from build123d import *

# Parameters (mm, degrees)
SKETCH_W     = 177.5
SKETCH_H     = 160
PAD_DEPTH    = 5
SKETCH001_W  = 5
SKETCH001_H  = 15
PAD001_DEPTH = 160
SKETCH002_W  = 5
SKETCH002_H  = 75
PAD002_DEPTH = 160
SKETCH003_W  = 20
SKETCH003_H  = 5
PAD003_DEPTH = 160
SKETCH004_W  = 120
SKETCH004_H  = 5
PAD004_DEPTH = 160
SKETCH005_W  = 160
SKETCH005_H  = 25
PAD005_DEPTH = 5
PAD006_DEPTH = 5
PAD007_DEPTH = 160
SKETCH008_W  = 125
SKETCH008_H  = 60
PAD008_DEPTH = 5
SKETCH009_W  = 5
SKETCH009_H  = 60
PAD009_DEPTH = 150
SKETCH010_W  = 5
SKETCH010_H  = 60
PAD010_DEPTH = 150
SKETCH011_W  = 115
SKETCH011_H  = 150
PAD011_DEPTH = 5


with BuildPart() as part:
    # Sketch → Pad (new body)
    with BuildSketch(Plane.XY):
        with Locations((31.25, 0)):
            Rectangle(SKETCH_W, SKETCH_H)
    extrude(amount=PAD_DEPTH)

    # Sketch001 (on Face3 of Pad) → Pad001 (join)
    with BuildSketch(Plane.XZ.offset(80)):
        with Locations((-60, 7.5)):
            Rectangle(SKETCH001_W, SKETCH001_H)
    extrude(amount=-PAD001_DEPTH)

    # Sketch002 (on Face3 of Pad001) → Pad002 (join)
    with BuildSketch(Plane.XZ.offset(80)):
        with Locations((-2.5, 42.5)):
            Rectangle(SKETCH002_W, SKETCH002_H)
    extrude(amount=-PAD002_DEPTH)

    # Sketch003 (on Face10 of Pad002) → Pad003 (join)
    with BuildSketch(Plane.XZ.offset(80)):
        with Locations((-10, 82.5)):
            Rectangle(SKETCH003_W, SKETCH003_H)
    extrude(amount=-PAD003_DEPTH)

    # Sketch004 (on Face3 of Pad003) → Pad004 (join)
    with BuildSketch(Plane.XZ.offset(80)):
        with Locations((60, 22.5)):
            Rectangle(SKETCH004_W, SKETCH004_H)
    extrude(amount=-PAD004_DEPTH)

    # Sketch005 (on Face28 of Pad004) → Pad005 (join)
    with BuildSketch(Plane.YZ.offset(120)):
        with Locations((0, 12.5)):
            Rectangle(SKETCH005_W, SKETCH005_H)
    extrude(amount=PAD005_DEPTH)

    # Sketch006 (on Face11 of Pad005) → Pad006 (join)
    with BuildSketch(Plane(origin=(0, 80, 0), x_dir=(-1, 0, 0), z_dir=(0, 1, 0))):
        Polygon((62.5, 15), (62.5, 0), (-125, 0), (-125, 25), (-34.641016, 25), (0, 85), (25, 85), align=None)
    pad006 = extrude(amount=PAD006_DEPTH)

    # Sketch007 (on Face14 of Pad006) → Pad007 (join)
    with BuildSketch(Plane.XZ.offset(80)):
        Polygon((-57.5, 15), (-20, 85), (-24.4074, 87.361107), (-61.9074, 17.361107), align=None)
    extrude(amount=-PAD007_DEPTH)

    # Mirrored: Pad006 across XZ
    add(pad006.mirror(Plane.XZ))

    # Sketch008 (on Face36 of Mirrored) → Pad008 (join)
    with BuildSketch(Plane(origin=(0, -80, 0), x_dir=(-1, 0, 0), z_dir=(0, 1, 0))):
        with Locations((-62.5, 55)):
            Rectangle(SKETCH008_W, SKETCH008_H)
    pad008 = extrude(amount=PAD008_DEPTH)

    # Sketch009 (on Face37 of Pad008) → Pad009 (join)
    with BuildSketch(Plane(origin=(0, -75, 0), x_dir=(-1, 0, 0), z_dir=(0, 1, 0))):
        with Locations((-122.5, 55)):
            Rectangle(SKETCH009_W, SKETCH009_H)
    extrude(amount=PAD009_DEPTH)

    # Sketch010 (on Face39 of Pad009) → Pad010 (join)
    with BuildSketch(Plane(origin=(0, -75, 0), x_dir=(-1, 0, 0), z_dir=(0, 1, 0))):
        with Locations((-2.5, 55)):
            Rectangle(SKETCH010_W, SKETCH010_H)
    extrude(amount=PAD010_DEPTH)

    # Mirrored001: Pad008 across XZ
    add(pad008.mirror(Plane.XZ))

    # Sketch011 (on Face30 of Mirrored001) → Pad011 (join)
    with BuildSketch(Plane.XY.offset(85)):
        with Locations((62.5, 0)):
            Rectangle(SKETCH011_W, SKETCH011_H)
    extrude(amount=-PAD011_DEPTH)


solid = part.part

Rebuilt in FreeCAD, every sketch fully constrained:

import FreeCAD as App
import Part
import Sketcher
from FreeCAD import Vector
Q = App.Units.Quantity


def add_polygon(sketch, points):
    """Adds a closed chain of lines whose ends are joined by coincident constraints."""
    first, n = sketch.GeometryCount, len(points)
    for a, b in zip(points, points[1:] + points[:1]):
        sketch.addGeometry(Part.LineSegment(App.Vector(*a, 0), App.Vector(*b, 0)), False)
    for i in range(n):
        sketch.addConstraint(Sketcher.Constraint("Coincident", first + i, 2, first + (i + 1) % n, 1))

doc = App.newDocument("Part")
params = doc.addObject("Spreadsheet::Sheet", "Params")
for row, (alias, value) in enumerate([
    ("sketch1_height", "160 mm"),
    ("sketch1_width", "177.5 mm"),
    ("pad1_length", "5 mm"),
    ("sketch2_width", "5 mm"),
    ("sketch2_height", "15 mm"),
    ("pad2_length", "160 mm"),
    ("sketch3_width", "5 mm"),
    ("sketch3_height", "75 mm"),
    ("pad3_length", "160 mm"),
    ("sketch4_width", "20 mm"),
    ("sketch4_height", "5 mm"),
    ("pad4_length", "160 mm"),
    ("sketch5_width", "120 mm"),
    ("sketch5_height", "5 mm"),
    ("pad5_length", "160 mm"),
    ("sketch6_width", "160 mm"),
    ("sketch6_height", "25 mm"),
    ("pad6_length", "5 mm"),
    ("sketch7_width", "25 mm"),
    ("sketch7_height", "15 mm"),
    ("sketch7_width2", "187.5 mm"),
    ("pad7_length", "5 mm"),
    ("sketch8_length", "5 mm"),
    ("pad8_length", "160 mm"),
    ("sketch9_width", "125 mm"),
    ("sketch9_height", "60 mm"),
    ("pad9_length", "5 mm"),
    ("sketch10_width", "5 mm"),
    ("sketch10_height", "60 mm"),
    ("pad10_length", "150 mm"),
    ("sketch11_width", "5 mm"),
    ("sketch11_height", "60 mm"),
    ("pad11_length", "150 mm"),
    ("sketch12_width", "115 mm"),
    ("sketch12_height", "150 mm"),
    ("pad12_length", "5 mm"),
], start=1):
    params.set(f"A{row}", alias)
    params.set(f"B{row}", "=" + value)
    params.setAlias(f"B{row}", alias)

body = doc.addObject("PartDesign::Body", "Body")

# Sketch on XY plane
sketch1 = body.newObject("Sketcher::SketchObject", "Sketch")
sketch1.AttachmentSupport = (doc.getObject("XY_Plane"), [""])
sketch1.MapMode = "FlatFace"
add_polygon(sketch1, [(-58, 80), (-58, -80), (120, -80), (120, 80)])  # lines 0-3
sketch1.addConstraint(Sketcher.Constraint("Vertical", 0))
sketch1.addConstraint(Sketcher.Constraint("Horizontal", 1))
sketch1.addConstraint(Sketcher.Constraint("Vertical", 2))
sketch1.addConstraint(Sketcher.Constraint("Horizontal", 3))
sketch1.addConstraint(Sketcher.Constraint("DistanceY", 0, 2, 0, 1, 160.0))
sketch1.addConstraint(Sketcher.Constraint("DistanceX", 1, 1, 1, 2, 177.5))
sketch1.addConstraint(Sketcher.Constraint("DistanceY", 0, 2, -1, 1, 80.0))
sketch1.addConstraint(Sketcher.Constraint("DistanceX", -1, 1, 1, 2, 120.0))
sketch1.setExpression("Constraints[8]", "Params.sketch1_height")
sketch1.setExpression("Constraints[9]", "Params.sketch1_width")
pad1 = body.newObject("PartDesign::Pad", "Pad")
pad1.Profile = sketch1
pad1.setExpression("Length", "Params.pad1_length")

# Sketch on XZ plane
sketch2 = body.newObject("Sketcher::SketchObject", "Sketch001")
sketch2.AttachmentSupport = (doc.getObject("XZ_Plane"), [""])
sketch2.MapMode = "FlatFace"
sketch2.AttachmentOffset = App.Placement(Vector(0, 0, 80), App.Rotation())
add_polygon(sketch2, [(-62, 15), (-62, 0), (-58, 0), (-58, 15)])  # lines 0-3
sketch2.addConstraint(Sketcher.Constraint("Vertical", 0))
sketch2.addConstraint(Sketcher.Constraint("Horizontal", 1))
sketch2.addConstraint(Sketcher.Constraint("Vertical", 2))
sketch2.addConstraint(Sketcher.Constraint("Horizontal", 3))
sketch2.addConstraint(Sketcher.Constraint("PointOnObject", 0, 2, -1))
sketch2.addConstraint(Sketcher.Constraint("DistanceX", 1, 1, 1, 2, 5.0))
sketch2.addConstraint(Sketcher.Constraint("DistanceY", 0, 2, 0, 1, 15.0))
sketch2.addConstraint(Sketcher.Constraint("DistanceX", 0, 2, -1, 1, 62.5))
sketch2.setExpression("Constraints[9]", "Params.sketch2_width")
sketch2.setExpression("Constraints[10]", "Params.sketch2_height")
pad2 = body.newObject("PartDesign::Pad", "Pad001")
pad2.Profile = sketch2
pad2.setExpression("Length", "Params.pad2_length")
pad2.Reversed = True

# Sketch on XZ plane
sketch3 = body.newObject("Sketcher::SketchObject", "Sketch002")
sketch3.AttachmentSupport = (doc.getObject("XZ_Plane"), [""])
sketch3.MapMode = "FlatFace"
sketch3.AttachmentOffset = App.Placement(Vector(0, 0, 80), App.Rotation())
add_polygon(sketch3, [(-5, 80), (-5, 5), (0, 5), (0, 80)])  # lines 0-3
sketch3.addConstraint(Sketcher.Constraint("Vertical", 0))
sketch3.addConstraint(Sketcher.Constraint("Horizontal", 1))
sketch3.addConstraint(Sketcher.Constraint("Vertical", 2))
sketch3.addConstraint(Sketcher.Constraint("Horizontal", 3))
sketch3.addConstraint(Sketcher.Constraint("PointOnObject", 1, 2, -2))
sketch3.addConstraint(Sketcher.Constraint("DistanceX", 1, 1, 1, 2, 5.0))
sketch3.addConstraint(Sketcher.Constraint("DistanceY", 0, 2, 0, 1, 75.0))
sketch3.addConstraint(Sketcher.Constraint("DistanceY", -1, 1, 0, 2, 5.0))
sketch3.setExpression("Constraints[9]", "Params.sketch3_width")
sketch3.setExpression("Constraints[10]", "Params.sketch3_height")
pad3 = body.newObject("PartDesign::Pad", "Pad002")
pad3.Profile = sketch3
pad3.setExpression("Length", "Params.pad3_length")
pad3.Reversed = True

# Sketch on XZ plane
sketch4 = body.newObject("Sketcher::SketchObject", "Sketch003")
sketch4.AttachmentSupport = (doc.getObject("XZ_Plane"), [""])
sketch4.MapMode = "FlatFace"
sketch4.AttachmentOffset = App.Placement(Vector(0, 0, 80), App.Rotation())
add_polygon(sketch4, [(-20, 85), (-20, 80), (0, 80), (0, 85)])  # lines 0-3
sketch4.addConstraint(Sketcher.Constraint("Vertical", 0))
sketch4.addConstraint(Sketcher.Constraint("Horizontal", 1))
sketch4.addConstraint(Sketcher.Constraint("Vertical", 2))
sketch4.addConstraint(Sketcher.Constraint("Horizontal", 3))
sketch4.addConstraint(Sketcher.Constraint("PointOnObject", 1, 2, -2))
sketch4.addConstraint(Sketcher.Constraint("DistanceX", 1, 1, 1, 2, 20.0))
sketch4.addConstraint(Sketcher.Constraint("DistanceY", 0, 2, 0, 1, 5.0))
sketch4.addConstraint(Sketcher.Constraint("DistanceY", -1, 1, 0, 2, 80.0))
sketch4.setExpression("Constraints[9]", "Params.sketch4_width")
sketch4.setExpression("Constraints[10]", "Params.sketch4_height")
pad4 = body.newObject("PartDesign::Pad", "Pad003")
pad4.Profile = sketch4
pad4.setExpression("Length", "Params.pad4_length")
pad4.Reversed = True

# Sketch on XZ plane
sketch5 = body.newObject("Sketcher::SketchObject", "Sketch004")
sketch5.AttachmentSupport = (doc.getObject("XZ_Plane"), [""])
sketch5.MapMode = "FlatFace"
sketch5.AttachmentOffset = App.Placement(Vector(0, 0, 80), App.Rotation())
add_polygon(sketch5, [(0, 25), (0, 20), (120, 20), (120, 25)])  # lines 0-3
sketch5.addConstraint(Sketcher.Constraint("Vertical", 0))
sketch5.addConstraint(Sketcher.Constraint("Horizontal", 1))
sketch5.addConstraint(Sketcher.Constraint("Vertical", 2))
sketch5.addConstraint(Sketcher.Constraint("Horizontal", 3))
sketch5.addConstraint(Sketcher.Constraint("PointOnObject", 0, 2, -2))
sketch5.addConstraint(Sketcher.Constraint("DistanceX", 1, 1, 1, 2, 120.0))
sketch5.addConstraint(Sketcher.Constraint("DistanceY", 0, 2, 0, 1, 5.0))
sketch5.addConstraint(Sketcher.Constraint("DistanceY", -1, 1, 0, 2, 20.0))
sketch5.setExpression("Constraints[9]", "Params.sketch5_width")
sketch5.setExpression("Constraints[10]", "Params.sketch5_height")
pad5 = body.newObject("PartDesign::Pad", "Pad004")
pad5.Profile = sketch5
pad5.setExpression("Length", "Params.pad5_length")
pad5.Reversed = True

# Sketch on YZ plane
sketch6 = body.newObject("Sketcher::SketchObject", "Sketch005")
sketch6.AttachmentSupport = (doc.getObject("YZ_Plane"), [""])
sketch6.MapMode = "FlatFace"
sketch6.AttachmentOffset = App.Placement(Vector(0, 0, 120), App.Rotation())
add_polygon(sketch6, [(-80, 25), (-80, 0), (80, 0), (80, 25)])  # lines 0-3
sketch6.addConstraint(Sketcher.Constraint("Vertical", 0))
sketch6.addConstraint(Sketcher.Constraint("Horizontal", 1))
sketch6.addConstraint(Sketcher.Constraint("Vertical", 2))
sketch6.addConstraint(Sketcher.Constraint("Horizontal", 3))
sketch6.addConstraint(Sketcher.Constraint("Symmetric", 0, 2, 1, 2, -1, 1))
sketch6.addConstraint(Sketcher.Constraint("DistanceX", 1, 1, 1, 2, 160.0))
sketch6.addConstraint(Sketcher.Constraint("DistanceY", 0, 2, 0, 1, 25.0))
sketch6.setExpression("Constraints[9]", "Params.sketch6_width")
sketch6.setExpression("Constraints[10]", "Params.sketch6_height")
pad6 = body.newObject("PartDesign::Pad", "Pad005")
pad6.Profile = sketch6
pad6.setExpression("Length", "Params.pad6_length")

# Sketch on XZ plane
sketch7 = body.newObject("Sketcher::SketchObject", "Sketch006")
sketch7.AttachmentSupport = (doc.getObject("XZ_Plane"), [""])
sketch7.MapMode = "FlatFace"
sketch7.AttachmentOffset = App.Placement(Vector(0, 0, -80), App.Rotation())
add_polygon(sketch7, [(-62, 0), (-62, 15), (-25, 85), (0, 85), (35, 25), (125, 25), (125, 0)])  # lines 0-6
sketch7.addConstraint(Sketcher.Constraint("Vertical", 0))
sketch7.addConstraint(Sketcher.Constraint("Horizontal", 2))
sketch7.addConstraint(Sketcher.Constraint("Horizontal", 4))
sketch7.addConstraint(Sketcher.Constraint("Vertical", 5))
sketch7.addConstraint(Sketcher.Constraint("Horizontal", 6))
sketch7.addConstraint(Sketcher.Constraint("PointOnObject", 2, 2, -2))
sketch7.addConstraint(Sketcher.Constraint("PointOnObject", 5, 2, -1))
sketch7.addConstraint(Sketcher.Constraint("Equal", 2, 5))
sketch7.addConstraint(Sketcher.Constraint("DistanceX", 2, 1, 2, 2, 25.0))
sketch7.addConstraint(Sketcher.Constraint("DistanceY", 0, 1, 0, 2, 15.0))
sketch7.addConstraint(Sketcher.Constraint("Angle", 3, Q("-60 deg")))
sketch7.addConstraint(Sketcher.Constraint("DistanceX", 6, 2, 6, 1, 187.5))
sketch7.addConstraint(Sketcher.Constraint("DistanceY", -1, 1, 1, 2, 85.0))
sketch7.addConstraint(Sketcher.Constraint("DistanceX", -1, 1, 4, 2, 125.0))
sketch7.setExpression("Constraints[15]", "Params.sketch7_width")
sketch7.setExpression("Constraints[16]", "Params.sketch7_height")
sketch7.setExpression("Constraints[18]", "Params.sketch7_width2")
pad7 = body.newObject("PartDesign::Pad", "Pad006")
pad7.Profile = sketch7
pad7.setExpression("Length", "Params.pad7_length")
pad7.Reversed = True

# Sketch on XZ plane
sketch8 = body.newObject("Sketcher::SketchObject", "Sketch007")
sketch8.AttachmentSupport = (doc.getObject("XZ_Plane"), [""])
sketch8.MapMode = "FlatFace"
sketch8.AttachmentOffset = App.Placement(Vector(0, 0, 80), App.Rotation())
add_polygon(sketch8, [(-58, 15), (-20, 85), (-24, 87), (-62, 17)])  # lines 0-3
sketch8.addConstraint(Sketcher.Constraint("Perpendicular", 0, 1))
sketch8.addConstraint(Sketcher.Constraint("Perpendicular", 1, 2))
sketch8.addConstraint(Sketcher.Constraint("Perpendicular", 2, 3))
sketch8.addConstraint(Sketcher.Constraint("Distance", 1, 5.0))
sketch8.addConstraint(Sketcher.Constraint("DistanceX", 0, 2, -1, 1, 20.0))
sketch8.addConstraint(Sketcher.Constraint("DistanceY", -1, 1, 0, 2, 85.0))
sketch8.addConstraint(Sketcher.Constraint("DistanceY", -1, 1, 3, 2, 15.0))
sketch8.addConstraint(Sketcher.Constraint("DistanceX", 3, 2, -1, 1, 57.5))
sketch8.setExpression("Constraints[7]", "Params.sketch8_length")
pad8 = body.newObject("PartDesign::Pad", "Pad007")
pad8.Profile = sketch8
pad8.setExpression("Length", "Params.pad8_length")
pad8.Reversed = True
doc.recompute()

mirrored = body.newObject("PartDesign::Mirrored", "Mirrored")
mirrored.Originals = [pad7]
mirrored.MirrorPlane = (doc.getObject("XZ_Plane"), [""])
body.Tip = mirrored

# Sketch on XZ plane
sketch9 = body.newObject("Sketcher::SketchObject", "Sketch008")
sketch9.AttachmentSupport = (doc.getObject("XZ_Plane"), [""])
sketch9.MapMode = "FlatFace"
sketch9.AttachmentOffset = App.Placement(Vector(0, 0, 80), App.Rotation())
add_polygon(sketch9, [(125, 85), (125, 25), (0, 25), (0, 85)])  # lines 0-3
sketch9.addConstraint(Sketcher.Constraint("Vertical", 0))
sketch9.addConstraint(Sketcher.Constraint("Horizontal", 1))
sketch9.addConstraint(Sketcher.Constraint("Vertical", 2))
sketch9.addConstraint(Sketcher.Constraint("Horizontal", 3))
sketch9.addConstraint(Sketcher.Constraint("PointOnObject", 1, 2, -2))
sketch9.addConstraint(Sketcher.Constraint("DistanceX", 1, 2, 1, 1, 125.0))
sketch9.addConstraint(Sketcher.Constraint("DistanceY", 0, 2, 0, 1, 60.0))
sketch9.addConstraint(Sketcher.Constraint("DistanceY", -1, 1, 0, 2, 25.0))
sketch9.setExpression("Constraints[9]", "Params.sketch9_width")
sketch9.setExpression("Constraints[10]", "Params.sketch9_height")
pad9 = body.newObject("PartDesign::Pad", "Pad008")
pad9.Profile = sketch9
pad9.setExpression("Length", "Params.pad9_length")
pad9.Reversed = True

# Sketch on XZ plane
sketch10 = body.newObject("Sketcher::SketchObject", "Sketch009")
sketch10.AttachmentSupport = (doc.getObject("XZ_Plane"), [""])
sketch10.MapMode = "FlatFace"
sketch10.AttachmentOffset = App.Placement(Vector(0, 0, 75), App.Rotation())
add_polygon(sketch10, [(125, 85), (125, 25), (120, 25), (120, 85)])  # lines 0-3
sketch10.addConstraint(Sketcher.Constraint("Vertical", 0))
sketch10.addConstraint(Sketcher.Constraint("Horizontal", 1))
sketch10.addConstraint(Sketcher.Constraint("Vertical", 2))
sketch10.addConstraint(Sketcher.Constraint("Horizontal", 3))
sketch10.addConstraint(Sketcher.Constraint("DistanceX", 1, 2, 1, 1, 5.0))
sketch10.addConstraint(Sketcher.Constraint("DistanceY", 0, 2, 0, 1, 60.0))
sketch10.addConstraint(Sketcher.Constraint("DistanceX", -1, 1, 0, 2, 125.0))
sketch10.addConstraint(Sketcher.Constraint("DistanceY", -1, 1, 0, 2, 25.0))
sketch10.setExpression("Constraints[8]", "Params.sketch10_width")
sketch10.setExpression("Constraints[9]", "Params.sketch10_height")
pad10 = body.newObject("PartDesign::Pad", "Pad009")
pad10.Profile = sketch10
pad10.setExpression("Length", "Params.pad10_length")
pad10.Reversed = True

# Sketch on XZ plane
sketch11 = body.newObject("Sketcher::SketchObject", "Sketch010")
sketch11.AttachmentSupport = (doc.getObject("XZ_Plane"), [""])
sketch11.MapMode = "FlatFace"
sketch11.AttachmentOffset = App.Placement(Vector(0, 0, 75), App.Rotation())
add_polygon(sketch11, [(5, 85), (5, 25), (0, 25), (0, 85)])  # lines 0-3
sketch11.addConstraint(Sketcher.Constraint("Vertical", 0))
sketch11.addConstraint(Sketcher.Constraint("Horizontal", 1))
sketch11.addConstraint(Sketcher.Constraint("Vertical", 2))
sketch11.addConstraint(Sketcher.Constraint("Horizontal", 3))
sketch11.addConstraint(Sketcher.Constraint("PointOnObject", 1, 2, -2))
sketch11.addConstraint(Sketcher.Constraint("DistanceX", 1, 2, 1, 1, 5.0))
sketch11.addConstraint(Sketcher.Constraint("DistanceY", 0, 2, 0, 1, 60.0))
sketch11.addConstraint(Sketcher.Constraint("DistanceY", -1, 1, 0, 2, 25.0))
sketch11.setExpression("Constraints[9]", "Params.sketch11_width")
sketch11.setExpression("Constraints[10]", "Params.sketch11_height")
pad11 = body.newObject("PartDesign::Pad", "Pad010")
pad11.Profile = sketch11
pad11.setExpression("Length", "Params.pad11_length")
pad11.Reversed = True
doc.recompute()

mirrored2 = body.newObject("PartDesign::Mirrored", "Mirrored001")
mirrored2.Originals = [pad9]
mirrored2.MirrorPlane = (doc.getObject("XZ_Plane"), [""])
body.Tip = mirrored2

# Sketch on XY plane
sketch12 = body.newObject("Sketcher::SketchObject", "Sketch011")
sketch12.AttachmentSupport = (doc.getObject("XY_Plane"), [""])
sketch12.MapMode = "FlatFace"
sketch12.AttachmentOffset = App.Placement(Vector(0, 0, 85), App.Rotation())
add_polygon(sketch12, [(5, 75), (5, -75), (120, -75), (120, 75)])  # lines 0-3
sketch12.addConstraint(Sketcher.Constraint("Vertical", 0))
sketch12.addConstraint(Sketcher.Constraint("Horizontal", 1))
sketch12.addConstraint(Sketcher.Constraint("Vertical", 2))
sketch12.addConstraint(Sketcher.Constraint("Horizontal", 3))
sketch12.addConstraint(Sketcher.Constraint("DistanceX", 1, 1, 1, 2, 115.0))
sketch12.addConstraint(Sketcher.Constraint("DistanceY", 0, 2, 0, 1, 150.0))
sketch12.addConstraint(Sketcher.Constraint("DistanceX", -1, 1, 0, 2, 5.0))
sketch12.addConstraint(Sketcher.Constraint("DistanceY", 0, 2, -1, 1, 75.0))
sketch12.setExpression("Constraints[8]", "Params.sketch12_width")
sketch12.setExpression("Constraints[9]", "Params.sketch12_height")
pad12 = body.newObject("PartDesign::Pad", "Pad011")
pad12.Profile = sketch12
pad12.setExpression("Length", "Params.pad12_length")
pad12.Reversed = True

doc.recompute()
